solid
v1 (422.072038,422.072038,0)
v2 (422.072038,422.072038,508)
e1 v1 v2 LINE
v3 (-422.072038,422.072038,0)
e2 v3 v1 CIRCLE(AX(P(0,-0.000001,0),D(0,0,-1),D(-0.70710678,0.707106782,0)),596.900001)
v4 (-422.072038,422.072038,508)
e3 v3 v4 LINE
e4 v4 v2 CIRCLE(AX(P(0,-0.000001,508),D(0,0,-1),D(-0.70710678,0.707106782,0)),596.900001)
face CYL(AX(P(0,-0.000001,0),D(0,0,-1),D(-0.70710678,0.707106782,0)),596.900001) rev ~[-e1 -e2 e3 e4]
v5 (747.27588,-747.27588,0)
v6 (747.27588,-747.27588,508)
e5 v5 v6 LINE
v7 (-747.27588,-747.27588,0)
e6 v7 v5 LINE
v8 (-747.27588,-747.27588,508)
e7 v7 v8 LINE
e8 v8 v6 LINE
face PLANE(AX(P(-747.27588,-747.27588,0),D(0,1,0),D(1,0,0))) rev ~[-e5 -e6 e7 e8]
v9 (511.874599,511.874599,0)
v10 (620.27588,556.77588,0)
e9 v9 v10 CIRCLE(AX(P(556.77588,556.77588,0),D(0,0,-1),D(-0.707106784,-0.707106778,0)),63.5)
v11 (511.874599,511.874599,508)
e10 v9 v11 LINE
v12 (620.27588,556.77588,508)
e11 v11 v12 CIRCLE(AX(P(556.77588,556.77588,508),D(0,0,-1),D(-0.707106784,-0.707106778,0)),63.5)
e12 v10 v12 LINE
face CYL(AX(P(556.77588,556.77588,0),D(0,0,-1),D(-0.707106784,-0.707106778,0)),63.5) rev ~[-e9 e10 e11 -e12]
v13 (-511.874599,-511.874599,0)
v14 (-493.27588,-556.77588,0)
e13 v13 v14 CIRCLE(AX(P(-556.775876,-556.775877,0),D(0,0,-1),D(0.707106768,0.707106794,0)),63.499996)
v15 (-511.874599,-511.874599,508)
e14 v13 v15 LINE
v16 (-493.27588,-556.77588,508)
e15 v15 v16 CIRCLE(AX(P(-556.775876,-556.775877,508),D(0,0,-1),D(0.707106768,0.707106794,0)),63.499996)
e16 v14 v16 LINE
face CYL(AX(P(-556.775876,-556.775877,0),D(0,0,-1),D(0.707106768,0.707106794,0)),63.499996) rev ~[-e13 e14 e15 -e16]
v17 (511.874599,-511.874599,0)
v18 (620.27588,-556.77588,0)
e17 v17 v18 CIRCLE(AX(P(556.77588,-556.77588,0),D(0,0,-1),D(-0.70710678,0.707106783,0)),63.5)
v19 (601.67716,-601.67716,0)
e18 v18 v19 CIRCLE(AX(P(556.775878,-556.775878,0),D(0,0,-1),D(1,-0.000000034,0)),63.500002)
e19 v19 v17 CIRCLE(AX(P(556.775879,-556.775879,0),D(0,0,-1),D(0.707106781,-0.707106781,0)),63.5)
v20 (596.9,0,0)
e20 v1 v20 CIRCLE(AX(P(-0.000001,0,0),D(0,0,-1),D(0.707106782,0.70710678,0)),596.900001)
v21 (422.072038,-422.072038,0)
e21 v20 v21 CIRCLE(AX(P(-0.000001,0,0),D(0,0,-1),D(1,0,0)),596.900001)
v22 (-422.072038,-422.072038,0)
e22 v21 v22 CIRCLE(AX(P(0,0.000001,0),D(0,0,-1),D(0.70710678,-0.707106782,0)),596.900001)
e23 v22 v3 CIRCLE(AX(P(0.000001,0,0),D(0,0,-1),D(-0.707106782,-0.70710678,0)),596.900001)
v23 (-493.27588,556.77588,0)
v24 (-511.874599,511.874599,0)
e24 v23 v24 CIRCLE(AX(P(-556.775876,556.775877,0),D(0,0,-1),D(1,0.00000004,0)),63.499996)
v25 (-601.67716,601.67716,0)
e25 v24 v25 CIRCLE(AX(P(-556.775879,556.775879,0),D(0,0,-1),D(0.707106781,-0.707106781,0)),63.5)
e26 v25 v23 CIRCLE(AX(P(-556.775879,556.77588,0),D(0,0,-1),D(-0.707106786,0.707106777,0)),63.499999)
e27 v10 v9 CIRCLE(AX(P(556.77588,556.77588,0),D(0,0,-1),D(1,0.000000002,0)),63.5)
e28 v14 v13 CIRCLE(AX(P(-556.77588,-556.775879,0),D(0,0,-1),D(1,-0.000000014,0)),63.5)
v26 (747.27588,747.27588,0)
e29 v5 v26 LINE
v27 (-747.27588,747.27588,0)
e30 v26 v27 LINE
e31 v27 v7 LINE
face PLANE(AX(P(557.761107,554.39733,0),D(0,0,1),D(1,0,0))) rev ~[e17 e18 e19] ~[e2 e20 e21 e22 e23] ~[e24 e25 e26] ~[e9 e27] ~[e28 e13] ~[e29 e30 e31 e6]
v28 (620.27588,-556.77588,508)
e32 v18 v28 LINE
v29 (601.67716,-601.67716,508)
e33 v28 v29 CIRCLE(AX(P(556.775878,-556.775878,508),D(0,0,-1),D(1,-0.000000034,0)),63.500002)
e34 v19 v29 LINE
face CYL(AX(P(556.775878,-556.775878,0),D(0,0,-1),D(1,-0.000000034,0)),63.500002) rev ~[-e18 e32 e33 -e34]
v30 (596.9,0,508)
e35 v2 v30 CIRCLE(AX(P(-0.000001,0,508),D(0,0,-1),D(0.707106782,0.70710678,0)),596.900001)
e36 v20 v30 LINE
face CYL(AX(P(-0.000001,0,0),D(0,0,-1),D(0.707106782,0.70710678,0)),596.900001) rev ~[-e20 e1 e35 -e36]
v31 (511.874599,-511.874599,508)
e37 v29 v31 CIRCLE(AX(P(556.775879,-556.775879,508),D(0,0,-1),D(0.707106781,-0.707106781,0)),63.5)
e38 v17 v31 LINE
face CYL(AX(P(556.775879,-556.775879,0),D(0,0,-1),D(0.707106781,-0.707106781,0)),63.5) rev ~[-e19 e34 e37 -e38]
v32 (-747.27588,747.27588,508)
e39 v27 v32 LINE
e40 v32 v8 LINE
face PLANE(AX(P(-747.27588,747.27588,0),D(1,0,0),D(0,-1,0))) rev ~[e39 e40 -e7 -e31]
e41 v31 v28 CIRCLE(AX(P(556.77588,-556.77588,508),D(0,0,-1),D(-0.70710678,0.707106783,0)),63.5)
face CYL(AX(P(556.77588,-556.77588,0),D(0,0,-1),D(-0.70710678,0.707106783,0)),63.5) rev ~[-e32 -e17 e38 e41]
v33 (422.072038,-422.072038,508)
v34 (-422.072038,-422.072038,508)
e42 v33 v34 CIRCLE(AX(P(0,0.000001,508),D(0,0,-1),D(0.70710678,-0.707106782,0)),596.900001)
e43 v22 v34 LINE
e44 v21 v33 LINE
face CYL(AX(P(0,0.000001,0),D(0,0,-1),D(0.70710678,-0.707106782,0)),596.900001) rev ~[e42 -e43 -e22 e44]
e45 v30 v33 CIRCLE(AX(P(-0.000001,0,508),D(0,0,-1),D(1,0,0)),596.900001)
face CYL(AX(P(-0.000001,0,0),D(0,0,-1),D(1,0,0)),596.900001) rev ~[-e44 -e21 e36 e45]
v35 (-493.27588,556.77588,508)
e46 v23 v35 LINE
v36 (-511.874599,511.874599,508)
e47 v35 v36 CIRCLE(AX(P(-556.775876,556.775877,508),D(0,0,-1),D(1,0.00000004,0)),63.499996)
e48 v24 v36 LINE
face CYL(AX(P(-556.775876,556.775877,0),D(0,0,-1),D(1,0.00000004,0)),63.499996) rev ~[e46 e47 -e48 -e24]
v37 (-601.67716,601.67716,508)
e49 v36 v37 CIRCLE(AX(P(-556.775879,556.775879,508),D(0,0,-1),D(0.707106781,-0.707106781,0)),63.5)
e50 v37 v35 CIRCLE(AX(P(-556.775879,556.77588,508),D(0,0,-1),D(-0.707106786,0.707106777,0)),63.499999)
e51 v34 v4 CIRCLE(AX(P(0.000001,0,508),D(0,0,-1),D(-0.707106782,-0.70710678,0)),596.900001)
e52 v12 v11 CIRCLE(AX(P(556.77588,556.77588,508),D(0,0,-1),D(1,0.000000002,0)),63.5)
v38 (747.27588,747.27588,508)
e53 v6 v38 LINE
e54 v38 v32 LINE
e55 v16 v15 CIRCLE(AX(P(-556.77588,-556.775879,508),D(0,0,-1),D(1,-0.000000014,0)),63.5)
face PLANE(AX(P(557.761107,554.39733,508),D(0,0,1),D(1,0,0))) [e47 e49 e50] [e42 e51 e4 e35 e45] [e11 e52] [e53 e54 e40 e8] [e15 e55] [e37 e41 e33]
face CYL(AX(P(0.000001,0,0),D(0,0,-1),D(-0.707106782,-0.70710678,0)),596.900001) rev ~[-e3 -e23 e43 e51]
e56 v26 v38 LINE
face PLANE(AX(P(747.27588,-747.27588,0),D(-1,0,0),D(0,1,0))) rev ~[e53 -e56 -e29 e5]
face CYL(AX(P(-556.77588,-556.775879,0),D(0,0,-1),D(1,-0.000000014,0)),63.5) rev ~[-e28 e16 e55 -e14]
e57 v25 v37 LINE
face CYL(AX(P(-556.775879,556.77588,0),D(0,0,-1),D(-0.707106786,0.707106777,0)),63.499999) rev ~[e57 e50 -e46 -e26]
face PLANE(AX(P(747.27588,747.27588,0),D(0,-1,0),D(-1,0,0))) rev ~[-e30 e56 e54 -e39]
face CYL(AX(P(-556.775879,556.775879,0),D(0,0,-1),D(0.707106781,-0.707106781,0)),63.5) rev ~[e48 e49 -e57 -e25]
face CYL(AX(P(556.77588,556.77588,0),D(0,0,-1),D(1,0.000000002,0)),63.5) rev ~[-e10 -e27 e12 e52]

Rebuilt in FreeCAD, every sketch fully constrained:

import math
import FreeCAD as App
import Part
import Sketcher
Q = App.Units.Quantity


def add_polygon(sketch, points):
    """Adds a closed chain of lines whose ends are joined by coincident constraints."""
    first, n = sketch.GeometryCount, len(points)
    for a, b in zip(points, points[1:] + points[:1]):
        sketch.addGeometry(Part.LineSegment(App.Vector(*a, 0), App.Vector(*b, 0)), False)
    for i in range(n):
        sketch.addConstraint(Sketcher.Constraint("Coincident", first + i, 2, first + (i + 1) % n, 1))

doc = App.newDocument("Part")
body = doc.addObject("PartDesign::Body", "Body")

# Sketch on XY plane
sketch1 = body.newObject("Sketcher::SketchObject", "Sketch")
sketch1.AttachmentSupport = (doc.getObject("XY_Plane"), [""])
sketch1.MapMode = "FlatFace"
add_polygon(sketch1, [(747, 747), (-747, 747), (-747, -747), (747, -747)])  # lines 0-3
sketch1.addGeometry(Part.ArcOfCircle(Part.Circle(App.Vector(-557, -557, 0), App.Vector(0, 0, 1), 63), math.radians(0), math.radians(45)), False)  # 4
sketch1.addGeometry(Part.ArcOfCircle(Part.Circle(App.Vector(-557, -557, 0), App.Vector(0, 0, 1), 63), math.radians(45), math.radians(360)), False)  # 5
sketch1.addGeometry(Part.ArcOfCircle(Part.Circle(App.Vector(0, 0, 0), App.Vector(0, 0, 1), 597), math.radians(0), math.radians(45)), False)  # 6
sketch1.addGeometry(Part.ArcOfCircle(Part.Circle(App.Vector(0, 0, 0), App.Vector(0, 0, 1), 597), math.radians(-45), math.radians(0)), False)  # 7
sketch1.addGeometry(Part.ArcOfCircle(Part.Circle(App.Vector(0, 0, 0), App.Vector(0, 0, 1), 597), math.radians(-135), math.radians(-45)), False)  # 8
sketch1.addGeometry(Part.ArcOfCircle(Part.Circle(App.Vector(0, 0, 0), App.Vector(0, 0, 1), 597), math.radians(135), math.radians(225)), False)  # 9
sketch1.addGeometry(Part.ArcOfCircle(Part.Circle(App.Vector(0, 0, 0), App.Vector(0, 0, 1), 597), math.radians(45), math.radians(135)), False)  # 10
sketch1.addGeometry(Part.ArcOfCircle(Part.Circle(App.Vector(557, -557, 0), App.Vector(0, 0, 1), 64), math.radians(0), math.radians(135)), False)  # 11
sketch1.addGeometry(Part.ArcOfCircle(Part.Circle(App.Vector(557, -557, 0), App.Vector(0, 0, 1), 64), math.radians(-45), math.radians(0)), False)  # 12
sketch1.addGeometry(Part.ArcOfCircle(Part.Circle(App.Vector(557, -557, 0), App.Vector(0, 0, 1), 63), math.radians(135), math.radians(315)), False)  # 13
sketch1.addGeometry(Part.ArcOfCircle(Part.Circle(App.Vector(-557, 557, 0), App.Vector(0, 0, 1), 63), math.radians(-45), math.radians(0)), False)  # 14
sketch1.addGeometry(Part.ArcOfCircle(Part.Circle(App.Vector(-557, 557, 0), App.Vector(0, 0, 1), 63), math.radians(135), math.radians(315)), False)  # 15
sketch1.addGeometry(Part.ArcOfCircle(Part.Circle(App.Vector(-557, 557, 0), App.Vector(0, 0, 1), 63), math.radians(0), math.radians(135)), False)  # 16
sketch1.addGeometry(Part.ArcOfCircle(Part.Circle(App.Vector(557, 557, 0), App.Vector(0, 0, 1), 64), math.radians(0), math.radians(225)), False)  # 17
sketch1.addGeometry(Part.ArcOfCircle(Part.Circle(App.Vector(557, 557, 0), App.Vector(0, 0, 1), 64), math.radians(-135), math.radians(0)), False)  # 18
sketch1.addConstraint([
    Sketcher.Constraint("Tangent", 4, 1, 5, 2),
    Sketcher.Constraint("Coincident", 5, 1, 4, 2),
    Sketcher.Constraint("Coincident", 6, 1, 7, 2),
    Sketcher.Constraint("Coincident", 7, 1, 8, 2),
    Sketcher.Constraint("Coincident", 8, 1, 9, 2),
    Sketcher.Constraint("Coincident", 9, 1, 10, 2),
    Sketcher.Constraint("Coincident", 10, 1, 6, 2),
    Sketcher.Constraint("Tangent", 11, 1, 12, 2),
    Sketcher.Constraint("Tangent", 12, 1, 13, 2),
    Sketcher.Constraint("Tangent", 13, 1, 11, 2),
    Sketcher.Constraint("Tangent", 14, 1, 15, 2),
    Sketcher.Constraint("Tangent", 15, 1, 16, 2),
    Sketcher.Constraint("Tangent", 16, 1, 14, 2),
    Sketcher.Constraint("Tangent", 17, 1, 18, 2),
    Sketcher.Constraint("Coincident", 18, 1, 17, 2),
    Sketcher.Constraint("Horizontal", 0),
    Sketcher.Constraint("Vertical", 1),
    Sketcher.Constraint("Horizontal", 2),
    Sketcher.Constraint("Vertical", 3),
    Sketcher.Constraint("Coincident", 6, 3, -1, 1),
    Sketcher.Constraint("Coincident", 7, 3, -1, 1),
    Sketcher.Constraint("Coincident", 8, 3, -1, 1),
    Sketcher.Constraint("Coincident", 9, 3, -1, 1),
    Sketcher.Constraint("Equal", 9, 10),
    Sketcher.Constraint("Equal", 5, 11),
    Sketcher.Constraint("Equal", 4, 14),
    Sketcher.Constraint("Equal", 16, 17),
    Sketcher.Constraint("Symmetric", 11, 3, 14, 3, -1, 1),
    Sketcher.Constraint("Symmetric", 4, 3, 17, 3, -1, 1),
    Sketcher.Constraint("Symmetric", 0, 2, 2, 2, -1, 1),
    Sketcher.Constraint("Symmetric", 4, 3, 11, 3, -2),
    Sketcher.Constraint("PointOnObject", 6, 1, -1),
    Sketcher.Constraint("Horizontal", 13, 3, 4, 1),
    Sketcher.Constraint("Horizontal", 7, 1, 8, 1),
    Sketcher.Constraint("Horizontal", 9, 1, 10, 1),
    Sketcher.Constraint("Horizontal", 4, 1, 11, 1),
    Sketcher.Constraint("Horizontal", 5, 1, 13, 1),
    Sketcher.Constraint("Horizontal", 18, 3, 16, 1),
    Sketcher.Constraint("Horizontal", 16, 1, 17, 1),
    Sketcher.Constraint("Horizontal", 14, 1, 18, 1),
    Sketcher.Constraint("Vertical", 8, 1, 9, 1),
    Sketcher.Constraint("Vertical", 5, 1, 14, 1),
    Sketcher.Constraint("Equal", 2, 1),
    Sketcher.Constraint("Radius", 4, Q("2.4999998 in")),
    Sketcher.Constraint("Radius", 6, Q("23.5000001 in")),
    Sketcher.Constraint("DistanceX", 1, 2, 4, 1, Q("10 in")),
    Sketcher.Constraint("DistanceY", 16, 3, 0, 2, Q("7.5 in")),
    Sketcher.Constraint("DistanceX", 0, 2, 0, 1, 1494.55176),
    Sketcher.Constraint("DistanceX", 5, 1, -1, 1, 511.874599),
    Sketcher.Constraint("DistanceX", -1, 1, 7, 1, 422.072038),
    Sketcher.Constraint("DistanceX", -1, 1, 12, 1, 601.67716),
    Sketcher.Constraint("DistanceX", 15, 1, -1, 1, 601.67716),
])
pad1 = body.newObject("PartDesign::Pad", "Pad")
pad1.Profile = sketch1
pad1.Length = Q("20 in")

doc.recompute()
